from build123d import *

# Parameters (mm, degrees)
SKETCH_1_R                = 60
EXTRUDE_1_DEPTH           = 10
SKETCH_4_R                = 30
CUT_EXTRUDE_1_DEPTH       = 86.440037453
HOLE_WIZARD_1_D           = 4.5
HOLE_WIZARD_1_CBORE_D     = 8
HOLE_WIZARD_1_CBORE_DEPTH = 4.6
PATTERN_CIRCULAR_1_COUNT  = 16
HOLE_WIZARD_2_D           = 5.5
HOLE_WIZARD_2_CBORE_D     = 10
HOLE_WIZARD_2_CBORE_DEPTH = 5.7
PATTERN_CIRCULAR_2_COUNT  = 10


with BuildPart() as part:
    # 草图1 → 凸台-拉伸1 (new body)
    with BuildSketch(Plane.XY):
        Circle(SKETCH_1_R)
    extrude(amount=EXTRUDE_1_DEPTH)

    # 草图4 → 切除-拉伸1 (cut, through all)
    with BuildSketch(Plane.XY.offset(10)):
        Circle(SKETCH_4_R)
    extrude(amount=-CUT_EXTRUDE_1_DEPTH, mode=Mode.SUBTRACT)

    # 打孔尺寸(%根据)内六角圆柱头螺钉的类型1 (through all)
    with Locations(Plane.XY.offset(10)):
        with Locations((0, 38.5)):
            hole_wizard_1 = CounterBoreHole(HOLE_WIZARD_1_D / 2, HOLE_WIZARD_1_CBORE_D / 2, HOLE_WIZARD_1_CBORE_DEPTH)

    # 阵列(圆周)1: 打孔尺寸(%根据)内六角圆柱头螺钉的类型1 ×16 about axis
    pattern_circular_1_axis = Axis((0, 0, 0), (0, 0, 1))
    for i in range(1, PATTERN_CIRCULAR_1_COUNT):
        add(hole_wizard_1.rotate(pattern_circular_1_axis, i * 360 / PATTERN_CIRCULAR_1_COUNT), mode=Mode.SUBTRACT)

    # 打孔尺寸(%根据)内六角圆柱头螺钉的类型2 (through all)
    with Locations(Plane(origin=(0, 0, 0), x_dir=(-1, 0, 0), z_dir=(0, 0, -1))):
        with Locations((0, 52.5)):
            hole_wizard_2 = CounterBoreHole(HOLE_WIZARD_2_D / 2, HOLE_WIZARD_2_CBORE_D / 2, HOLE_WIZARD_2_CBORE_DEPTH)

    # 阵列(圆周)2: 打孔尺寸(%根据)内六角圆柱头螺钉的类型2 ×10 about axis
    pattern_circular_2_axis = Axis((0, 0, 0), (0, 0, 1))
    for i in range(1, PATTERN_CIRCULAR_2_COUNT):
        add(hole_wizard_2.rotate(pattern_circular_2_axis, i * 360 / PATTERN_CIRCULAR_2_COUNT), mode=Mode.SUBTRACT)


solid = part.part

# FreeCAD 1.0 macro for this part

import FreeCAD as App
import Part
import Sketcher

V = App.Vector

doc = App.newDocument("Part")
params = doc.addObject("Spreadsheet::Sheet", "Params")
for row, (alias, value) in enumerate([
    ("sketch1_diameter", "120 mm"),
    ("pad1_length", "10 mm"),
    ("sketch2_diameter", "60 mm"),
    ("sketch3_diameter", "4.5 mm"),
    ("hole_diameter", "4.5 mm"),
    ("hole_cbore_diameter", "8 mm"),
    ("hole_cbore_depth", "4.6 mm"),
    ("sketch4_diameter", "5.5 mm"),
    ("hole2_diameter", "5.5 mm"),
    ("hole2_cbore_diameter", "10 mm"),
    ("hole2_cbore_depth", "5.7 mm"),
], start=1):
    params.set(f"A{row}", alias)
    params.set(f"B{row}", "=" + value)
    params.setAlias(f"B{row}", alias)

body = doc.addObject("PartDesign::Body", "Body")

sketch1 = doc.addObject("Sketcher::SketchObject", "Sketch")
body.addObject(sketch1)
sketch1.AttachmentSupport = (doc.XY_Plane, [""])
sketch1.MapMode = "FlatFace"
sketch1.addGeometry(Part.Circle(V(0, 0, 0), V(0, 0, 1), 60), False)
sketch1.addConstraint([
    Sketcher.Constraint("Coincident", 0, 3, -1, 1),
    Sketcher.Constraint("Diameter", 0, 120.0),
])
sketch1.setExpression("Constraints[1]", "Params.sketch1_diameter")
pad1 = doc.addObject("PartDesign::Pad", "Pad")
body.addObject(pad1)
pad1.Profile = sketch1
pad1.setExpression("Length", "Params.pad1_length")

sketch2 = doc.addObject("Sketcher::SketchObject", "Sketch001")
body.addObject(sketch2)
sketch2.AttachmentSupport = (doc.XY_Plane, [""])
sketch2.MapMode = "FlatFace"
sketch2.AttachmentOffset = App.Placement(V(0, 0, 10), App.Rotation())
sketch2.addGeometry(Part.Circle(V(0, 0, 0), V(0, 0, 1), 30), False)
sketch2.addConstraint([
    Sketcher.Constraint("Coincident", 0, 3, -1, 1),
    Sketcher.Constraint("Diameter", 0, 60.0),
])
sketch2.setExpression("Constraints[1]", "Params.sketch2_diameter")
pocket1 = doc.addObject("PartDesign::Pocket", "Pocket")
body.addObject(pocket1)
pocket1.Profile = sketch2
pocket1.Type = "ThroughAll"

sketch3 = doc.addObject("Sketcher::SketchObject", "Sketch002")
body.addObject(sketch3)
sketch3.AttachmentSupport = (doc.XY_Plane, [""])
sketch3.MapMode = "FlatFace"
sketch3.AttachmentOffset = App.Placement(V(0, 0, 10), App.Rotation())
sketch3.addGeometry(Part.Circle(V(0, 38.5, 0), V(0, 0, 1), 2.2), False)
sketch3.addConstraint([
    Sketcher.Constraint("PointOnObject", 0, 3, -2),
    Sketcher.Constraint("Diameter", 0, 4.5),
    Sketcher.Constraint("DistanceY", -1, 1, 0, 3, 38.5),
])
sketch3.setExpression("Constraints[1]", "Params.sketch3_diameter")
doc.recompute()
hole = doc.addObject("PartDesign::Hole", "Hole")
body.addObject(hole)
hole.Profile = sketch3
hole.ThreadType = "None"
hole.setExpression("Diameter", "Params.hole_diameter")
hole.DepthType = "ThroughAll"
hole.HoleCutType = "Counterbore"
hole.setExpression("HoleCutDiameter", "Params.hole_cbore_diameter")
hole.setExpression("HoleCutDepth", "Params.hole_cbore_depth")
doc.recompute()

polarpattern = doc.addObject("PartDesign::PolarPattern", "PolarPattern")
body.addObject(polarpattern)
polarpattern.Originals = [hole]
polarpattern.Axis = (doc.Z_Axis, [""])
polarpattern.Angle = 360
polarpattern.Occurrences = 16
body.Tip = polarpattern

sketch4 = doc.addObject("Sketcher::SketchObject", "Sketch003")
body.addObject(sketch4)
sketch4.AttachmentSupport = (doc.XY_Plane, [""])
sketch4.MapMode = "FlatFace"
sketch4.addGeometry(Part.Circle(V(0, 52.5, 0), V(0, 0, 1), 2.8), False)
sketch4.addConstraint([
    Sketcher.Constraint("PointOnObject", 0, 3, -2),
    Sketcher.Constraint("Diameter", 0, 5.5),
    Sketcher.Constraint("DistanceY", -1, 1, 0, 3, 52.5),
])
sketch4.setExpression("Constraints[1]", "Params.sketch4_diameter")
doc.recompute()
hole2 = doc.addObject("PartDesign::Hole", "Hole001")
body.addObject(hole2)
hole2.Profile = sketch4
hole2.ThreadType = "None"
hole2.setExpression("Diameter", "Params.hole2_diameter")
hole2.DepthType = "ThroughAll"
hole2.HoleCutType = "Counterbore"
hole2.setExpression("HoleCutDiameter", "Params.hole2_cbore_diameter")
hole2.setExpression("HoleCutDepth", "Params.hole2_cbore_depth")
hole2.Reversed = True
doc.recompute()

polarpattern2 = doc.addObject("PartDesign::PolarPattern", "PolarPattern001")
body.addObject(polarpattern2)
polarpattern2.Originals = [hole2]
polarpattern2.Axis = (doc.Z_Axis, [""])
polarpattern2.Angle = 360
polarpattern2.Occurrences = 10
body.Tip = polarpattern2

doc.recompute()
